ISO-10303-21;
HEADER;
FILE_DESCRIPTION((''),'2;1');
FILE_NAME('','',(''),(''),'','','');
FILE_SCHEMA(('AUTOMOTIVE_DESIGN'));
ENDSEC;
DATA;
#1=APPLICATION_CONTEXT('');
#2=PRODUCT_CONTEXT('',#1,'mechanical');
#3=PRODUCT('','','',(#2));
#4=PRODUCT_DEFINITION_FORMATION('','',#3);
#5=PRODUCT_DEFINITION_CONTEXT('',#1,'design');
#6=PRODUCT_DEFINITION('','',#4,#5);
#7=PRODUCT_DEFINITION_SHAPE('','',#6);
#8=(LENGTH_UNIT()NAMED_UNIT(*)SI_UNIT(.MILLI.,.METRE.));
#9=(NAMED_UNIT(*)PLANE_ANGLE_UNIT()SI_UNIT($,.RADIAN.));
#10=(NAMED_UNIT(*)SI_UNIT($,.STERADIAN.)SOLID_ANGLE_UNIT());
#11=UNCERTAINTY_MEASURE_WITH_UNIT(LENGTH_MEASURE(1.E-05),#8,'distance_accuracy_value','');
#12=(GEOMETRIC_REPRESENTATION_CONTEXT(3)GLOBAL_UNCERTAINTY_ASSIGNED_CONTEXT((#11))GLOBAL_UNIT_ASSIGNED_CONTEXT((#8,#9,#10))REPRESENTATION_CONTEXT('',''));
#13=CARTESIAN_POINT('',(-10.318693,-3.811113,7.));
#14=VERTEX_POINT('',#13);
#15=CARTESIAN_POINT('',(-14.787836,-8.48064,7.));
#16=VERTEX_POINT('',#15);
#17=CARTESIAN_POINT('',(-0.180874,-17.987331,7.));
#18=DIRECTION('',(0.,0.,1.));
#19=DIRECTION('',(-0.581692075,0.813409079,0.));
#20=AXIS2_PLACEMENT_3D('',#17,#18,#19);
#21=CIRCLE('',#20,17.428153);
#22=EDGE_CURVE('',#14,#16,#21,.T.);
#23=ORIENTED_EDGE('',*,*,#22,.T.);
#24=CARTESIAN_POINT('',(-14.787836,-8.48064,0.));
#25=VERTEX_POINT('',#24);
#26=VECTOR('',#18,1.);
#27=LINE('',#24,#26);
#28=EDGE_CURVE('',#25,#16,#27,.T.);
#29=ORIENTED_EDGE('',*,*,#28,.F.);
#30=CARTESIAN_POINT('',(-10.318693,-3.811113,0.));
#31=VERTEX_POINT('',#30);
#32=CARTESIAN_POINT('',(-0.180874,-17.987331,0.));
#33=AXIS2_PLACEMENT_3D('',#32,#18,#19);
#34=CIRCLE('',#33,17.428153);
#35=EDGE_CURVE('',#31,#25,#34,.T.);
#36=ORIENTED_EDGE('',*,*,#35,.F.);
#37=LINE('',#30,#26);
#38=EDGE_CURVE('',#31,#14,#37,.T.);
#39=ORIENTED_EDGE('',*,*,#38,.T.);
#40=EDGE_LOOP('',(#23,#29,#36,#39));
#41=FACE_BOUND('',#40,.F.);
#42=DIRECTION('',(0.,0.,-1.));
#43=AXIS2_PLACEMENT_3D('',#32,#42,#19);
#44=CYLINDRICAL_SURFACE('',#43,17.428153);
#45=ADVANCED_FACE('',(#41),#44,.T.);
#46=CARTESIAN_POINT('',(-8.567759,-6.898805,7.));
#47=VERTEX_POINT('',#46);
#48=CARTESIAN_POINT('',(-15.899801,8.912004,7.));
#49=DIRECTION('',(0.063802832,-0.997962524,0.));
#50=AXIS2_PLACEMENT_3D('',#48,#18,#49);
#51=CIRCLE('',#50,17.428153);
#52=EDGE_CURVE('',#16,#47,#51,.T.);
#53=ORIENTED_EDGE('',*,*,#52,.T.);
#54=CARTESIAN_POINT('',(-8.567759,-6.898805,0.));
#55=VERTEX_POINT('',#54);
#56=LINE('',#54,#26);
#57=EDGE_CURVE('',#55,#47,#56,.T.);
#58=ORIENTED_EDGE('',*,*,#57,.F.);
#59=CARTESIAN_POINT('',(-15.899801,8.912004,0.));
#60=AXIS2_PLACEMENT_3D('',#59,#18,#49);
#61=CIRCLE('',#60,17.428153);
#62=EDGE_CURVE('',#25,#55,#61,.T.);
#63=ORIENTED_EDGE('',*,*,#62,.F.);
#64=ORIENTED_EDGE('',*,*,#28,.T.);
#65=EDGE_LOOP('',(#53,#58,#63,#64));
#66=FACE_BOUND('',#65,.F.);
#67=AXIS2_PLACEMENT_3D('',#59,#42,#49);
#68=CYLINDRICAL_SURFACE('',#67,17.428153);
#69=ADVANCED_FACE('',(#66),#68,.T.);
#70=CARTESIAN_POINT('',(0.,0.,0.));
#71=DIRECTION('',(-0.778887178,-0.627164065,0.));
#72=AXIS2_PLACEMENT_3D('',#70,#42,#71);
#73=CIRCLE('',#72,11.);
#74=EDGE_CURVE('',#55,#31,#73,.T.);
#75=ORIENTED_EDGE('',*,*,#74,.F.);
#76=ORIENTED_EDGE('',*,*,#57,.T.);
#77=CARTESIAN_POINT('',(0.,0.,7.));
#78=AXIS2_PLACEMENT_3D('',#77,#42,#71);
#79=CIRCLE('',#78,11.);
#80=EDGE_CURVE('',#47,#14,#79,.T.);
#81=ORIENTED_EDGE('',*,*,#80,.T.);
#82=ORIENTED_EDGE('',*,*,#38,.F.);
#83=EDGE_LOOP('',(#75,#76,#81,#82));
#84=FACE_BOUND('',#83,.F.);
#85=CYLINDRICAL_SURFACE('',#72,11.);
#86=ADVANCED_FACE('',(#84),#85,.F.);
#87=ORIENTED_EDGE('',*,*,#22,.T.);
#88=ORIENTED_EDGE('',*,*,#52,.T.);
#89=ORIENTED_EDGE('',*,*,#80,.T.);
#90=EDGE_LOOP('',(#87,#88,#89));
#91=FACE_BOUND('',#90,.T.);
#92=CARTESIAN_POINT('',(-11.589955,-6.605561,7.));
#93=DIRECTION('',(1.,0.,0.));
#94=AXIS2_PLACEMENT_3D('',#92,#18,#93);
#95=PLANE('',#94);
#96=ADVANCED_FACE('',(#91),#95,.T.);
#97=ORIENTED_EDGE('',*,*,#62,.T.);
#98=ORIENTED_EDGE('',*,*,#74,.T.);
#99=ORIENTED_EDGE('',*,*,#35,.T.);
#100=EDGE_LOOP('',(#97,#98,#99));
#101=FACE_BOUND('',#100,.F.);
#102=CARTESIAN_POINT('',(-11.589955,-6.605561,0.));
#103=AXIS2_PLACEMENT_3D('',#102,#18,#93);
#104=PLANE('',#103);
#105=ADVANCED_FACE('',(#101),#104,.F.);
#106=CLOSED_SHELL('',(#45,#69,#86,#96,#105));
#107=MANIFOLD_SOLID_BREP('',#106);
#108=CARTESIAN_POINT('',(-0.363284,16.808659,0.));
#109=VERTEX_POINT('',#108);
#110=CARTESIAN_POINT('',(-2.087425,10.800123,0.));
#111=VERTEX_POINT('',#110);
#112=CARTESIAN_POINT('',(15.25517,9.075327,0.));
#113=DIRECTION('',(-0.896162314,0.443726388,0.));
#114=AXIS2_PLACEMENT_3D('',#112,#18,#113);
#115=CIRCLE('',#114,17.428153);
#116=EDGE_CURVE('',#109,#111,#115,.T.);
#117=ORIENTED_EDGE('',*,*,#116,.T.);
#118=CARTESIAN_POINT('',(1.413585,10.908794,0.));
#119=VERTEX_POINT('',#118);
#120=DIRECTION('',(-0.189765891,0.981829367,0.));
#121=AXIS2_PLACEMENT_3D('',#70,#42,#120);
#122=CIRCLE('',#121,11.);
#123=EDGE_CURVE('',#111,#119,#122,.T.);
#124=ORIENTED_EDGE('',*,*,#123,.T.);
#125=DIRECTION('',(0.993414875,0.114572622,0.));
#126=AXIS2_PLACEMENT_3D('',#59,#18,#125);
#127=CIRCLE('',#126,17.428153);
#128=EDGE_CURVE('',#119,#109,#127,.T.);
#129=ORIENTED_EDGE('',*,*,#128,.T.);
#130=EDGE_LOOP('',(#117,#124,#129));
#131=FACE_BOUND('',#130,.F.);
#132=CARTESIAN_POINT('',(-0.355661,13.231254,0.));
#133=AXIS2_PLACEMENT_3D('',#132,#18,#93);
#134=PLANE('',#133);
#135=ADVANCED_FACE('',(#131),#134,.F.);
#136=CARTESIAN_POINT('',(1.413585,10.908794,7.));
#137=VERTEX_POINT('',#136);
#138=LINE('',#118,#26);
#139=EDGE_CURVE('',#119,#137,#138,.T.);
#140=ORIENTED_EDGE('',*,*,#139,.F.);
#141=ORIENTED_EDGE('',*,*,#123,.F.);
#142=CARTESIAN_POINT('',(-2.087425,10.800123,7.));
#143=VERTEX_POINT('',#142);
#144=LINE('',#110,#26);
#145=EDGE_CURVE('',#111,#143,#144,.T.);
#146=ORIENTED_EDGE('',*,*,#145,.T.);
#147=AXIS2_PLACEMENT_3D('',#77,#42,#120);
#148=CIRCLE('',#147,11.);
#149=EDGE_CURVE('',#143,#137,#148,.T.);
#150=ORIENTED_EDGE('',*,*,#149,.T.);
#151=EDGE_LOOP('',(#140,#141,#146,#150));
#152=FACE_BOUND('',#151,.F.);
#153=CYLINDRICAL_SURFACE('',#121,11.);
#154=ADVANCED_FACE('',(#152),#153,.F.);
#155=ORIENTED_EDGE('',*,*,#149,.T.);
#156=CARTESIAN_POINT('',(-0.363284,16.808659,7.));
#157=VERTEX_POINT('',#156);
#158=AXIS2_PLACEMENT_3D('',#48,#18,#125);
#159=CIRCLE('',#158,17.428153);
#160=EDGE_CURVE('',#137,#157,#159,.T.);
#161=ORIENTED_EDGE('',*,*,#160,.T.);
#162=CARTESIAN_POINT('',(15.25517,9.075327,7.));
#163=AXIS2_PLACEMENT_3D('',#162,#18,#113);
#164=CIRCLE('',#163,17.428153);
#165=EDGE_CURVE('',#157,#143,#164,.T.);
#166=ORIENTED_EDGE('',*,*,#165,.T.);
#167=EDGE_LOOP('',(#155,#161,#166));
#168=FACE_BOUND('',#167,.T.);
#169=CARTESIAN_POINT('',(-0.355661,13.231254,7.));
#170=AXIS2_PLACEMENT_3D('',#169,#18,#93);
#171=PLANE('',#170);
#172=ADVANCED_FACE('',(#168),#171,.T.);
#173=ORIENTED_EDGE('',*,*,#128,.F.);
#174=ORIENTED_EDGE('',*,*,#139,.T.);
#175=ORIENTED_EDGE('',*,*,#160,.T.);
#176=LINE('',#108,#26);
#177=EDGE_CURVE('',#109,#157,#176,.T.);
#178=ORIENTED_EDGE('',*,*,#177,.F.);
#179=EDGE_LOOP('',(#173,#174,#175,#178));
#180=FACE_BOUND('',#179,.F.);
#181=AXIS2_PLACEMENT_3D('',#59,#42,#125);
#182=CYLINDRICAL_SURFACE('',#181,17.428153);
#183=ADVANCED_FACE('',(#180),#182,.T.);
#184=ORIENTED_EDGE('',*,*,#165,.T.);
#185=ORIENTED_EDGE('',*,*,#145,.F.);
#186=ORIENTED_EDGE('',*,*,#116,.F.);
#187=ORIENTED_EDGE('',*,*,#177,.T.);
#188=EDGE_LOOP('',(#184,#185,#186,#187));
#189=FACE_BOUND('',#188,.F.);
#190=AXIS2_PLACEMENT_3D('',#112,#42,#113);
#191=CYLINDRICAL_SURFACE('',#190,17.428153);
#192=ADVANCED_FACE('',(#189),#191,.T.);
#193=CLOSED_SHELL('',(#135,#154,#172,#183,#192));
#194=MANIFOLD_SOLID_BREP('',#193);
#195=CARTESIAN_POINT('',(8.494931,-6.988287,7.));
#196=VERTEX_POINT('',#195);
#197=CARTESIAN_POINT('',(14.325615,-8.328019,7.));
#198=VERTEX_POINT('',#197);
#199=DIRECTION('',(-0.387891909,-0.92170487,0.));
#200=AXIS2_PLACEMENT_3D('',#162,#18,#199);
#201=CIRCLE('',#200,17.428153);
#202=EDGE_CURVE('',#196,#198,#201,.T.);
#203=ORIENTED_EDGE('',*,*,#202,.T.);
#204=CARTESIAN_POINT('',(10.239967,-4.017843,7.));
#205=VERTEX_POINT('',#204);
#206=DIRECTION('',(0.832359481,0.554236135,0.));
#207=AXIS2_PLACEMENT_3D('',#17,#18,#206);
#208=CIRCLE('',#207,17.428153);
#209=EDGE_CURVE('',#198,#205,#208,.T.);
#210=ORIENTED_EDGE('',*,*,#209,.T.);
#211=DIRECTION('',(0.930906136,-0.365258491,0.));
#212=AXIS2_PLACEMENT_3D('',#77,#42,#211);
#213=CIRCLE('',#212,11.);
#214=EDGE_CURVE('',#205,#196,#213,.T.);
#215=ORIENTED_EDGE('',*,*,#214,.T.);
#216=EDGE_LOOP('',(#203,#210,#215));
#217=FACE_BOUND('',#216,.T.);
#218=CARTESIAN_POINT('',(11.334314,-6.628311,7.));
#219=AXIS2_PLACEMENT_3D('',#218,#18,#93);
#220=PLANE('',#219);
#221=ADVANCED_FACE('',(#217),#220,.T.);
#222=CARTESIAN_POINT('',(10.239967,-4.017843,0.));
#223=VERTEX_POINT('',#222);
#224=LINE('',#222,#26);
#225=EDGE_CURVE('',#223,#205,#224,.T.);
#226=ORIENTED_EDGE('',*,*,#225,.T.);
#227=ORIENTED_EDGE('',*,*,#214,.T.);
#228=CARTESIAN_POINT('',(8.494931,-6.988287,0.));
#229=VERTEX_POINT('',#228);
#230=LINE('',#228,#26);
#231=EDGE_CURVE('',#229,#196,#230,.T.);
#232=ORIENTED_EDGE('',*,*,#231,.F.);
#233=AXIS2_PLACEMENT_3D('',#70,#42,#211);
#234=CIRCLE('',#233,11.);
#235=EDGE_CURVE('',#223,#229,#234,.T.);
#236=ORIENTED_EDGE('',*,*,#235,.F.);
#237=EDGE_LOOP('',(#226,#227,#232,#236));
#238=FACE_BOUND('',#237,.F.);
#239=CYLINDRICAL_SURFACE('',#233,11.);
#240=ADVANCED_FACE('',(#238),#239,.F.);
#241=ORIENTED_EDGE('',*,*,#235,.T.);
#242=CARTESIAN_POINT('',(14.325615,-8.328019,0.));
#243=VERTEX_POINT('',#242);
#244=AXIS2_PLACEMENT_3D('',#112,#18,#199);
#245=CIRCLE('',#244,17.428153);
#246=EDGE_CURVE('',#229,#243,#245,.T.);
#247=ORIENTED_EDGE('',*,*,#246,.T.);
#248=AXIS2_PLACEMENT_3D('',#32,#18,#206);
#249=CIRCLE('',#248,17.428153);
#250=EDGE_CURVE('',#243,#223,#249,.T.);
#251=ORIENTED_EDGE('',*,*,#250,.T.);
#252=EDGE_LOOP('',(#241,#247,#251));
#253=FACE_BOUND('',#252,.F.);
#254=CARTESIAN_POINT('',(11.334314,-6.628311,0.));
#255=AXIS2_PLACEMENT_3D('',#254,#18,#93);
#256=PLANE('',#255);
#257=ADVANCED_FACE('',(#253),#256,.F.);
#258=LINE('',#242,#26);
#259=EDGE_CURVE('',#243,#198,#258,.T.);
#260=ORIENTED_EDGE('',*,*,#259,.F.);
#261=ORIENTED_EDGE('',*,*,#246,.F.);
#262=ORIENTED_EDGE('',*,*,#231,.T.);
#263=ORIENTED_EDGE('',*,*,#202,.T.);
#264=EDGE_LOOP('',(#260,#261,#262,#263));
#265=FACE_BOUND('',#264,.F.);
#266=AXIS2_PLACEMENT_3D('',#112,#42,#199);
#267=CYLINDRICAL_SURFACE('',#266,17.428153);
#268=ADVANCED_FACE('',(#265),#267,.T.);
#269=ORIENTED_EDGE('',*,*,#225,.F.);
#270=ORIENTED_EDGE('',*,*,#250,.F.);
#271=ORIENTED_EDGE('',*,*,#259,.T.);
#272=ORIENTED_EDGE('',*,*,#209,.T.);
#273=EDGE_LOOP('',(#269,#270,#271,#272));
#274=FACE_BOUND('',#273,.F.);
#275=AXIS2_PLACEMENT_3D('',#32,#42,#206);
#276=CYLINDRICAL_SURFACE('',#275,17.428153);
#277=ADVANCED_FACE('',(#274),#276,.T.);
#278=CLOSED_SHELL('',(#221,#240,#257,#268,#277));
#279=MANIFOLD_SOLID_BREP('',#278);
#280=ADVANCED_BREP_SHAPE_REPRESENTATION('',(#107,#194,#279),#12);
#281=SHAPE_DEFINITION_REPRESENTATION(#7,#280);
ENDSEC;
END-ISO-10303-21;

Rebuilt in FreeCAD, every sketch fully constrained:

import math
import FreeCAD as App
import Part
import Sketcher

V = App.Vector
Q = App.Units.Quantity

doc = App.newDocument("Part")
body = doc.addObject("PartDesign::Body", "Body")

sketch1 = doc.addObject("Sketcher::SketchObject", "Sketch")
body.addObject(sketch1)
sketch1.AttachmentSupport = (doc.XY_Plane, [""])
sketch1.MapMode = "FlatFace"
sketch1.addGeometry([
    Part.ArcOfCircle(Part.Circle(V(0, 0, 0), V(0, 0, 1), 11), math.radians(82.62), math.radians(100.94)),
    Part.ArcOfCircle(Part.Circle(V(-15.9, 8.9, 0), V(0, 0, 1), 17.4), math.radians(7), math.radians(27)),
    Part.ArcOfCircle(Part.Circle(V(15.3, 9.1, 0), V(0, 0, 1), 17.4), math.radians(154), math.radians(174)),
], False)
sketch1.addConstraint([
    Sketcher.Constraint("Coincident", 0, 1, 1, 1),
    Sketcher.Constraint("Coincident", 1, 2, 2, 1),
    Sketcher.Constraint("Coincident", 2, 2, 0, 2),
    Sketcher.Constraint("Coincident", 0, 3, -1, 1),
    Sketcher.Constraint("Equal", 1, 2),
    Sketcher.Constraint("Radius", 0, Q("11 mm")),
    Sketcher.Constraint("Radius", 1, Q("17.428153 mm")),
    Sketcher.Constraint("DistanceX", 1, 3, -1, 1, Q("15.899801 mm")),
    Sketcher.Constraint("DistanceX", -1, 1, 2, 3, Q("15.25517 mm")),
    Sketcher.Constraint("DistanceY", -1, 1, 1, 2, Q("16.808659 mm")),
    Sketcher.Constraint("DistanceY", 1, 3, 0, 1, Q("1.996789 mm")),
])
pad1 = doc.addObject("PartDesign::Pad", "Pad")
body.addObject(pad1)
pad1.Profile = sketch1
pad1.Length = 7
body2 = doc.addObject("PartDesign::Body", "Body001")

sketch2 = doc.addObject("Sketcher::SketchObject", "Sketch001")
body2.addObject(sketch2)
sketch2.AttachmentSupport = (doc.getObject("XY_Plane001"), [""])
sketch2.MapMode = "FlatFace"
sketch2.addGeometry([
    Part.ArcOfCircle(Part.Circle(V(0, 0, 0), V(0, 0, 1), 11), math.radians(-159.73), math.radians(-141.16)),
    Part.ArcOfCircle(Part.Circle(V(-0.2, -18, 0), V(0, 0, 1), 17.4), math.radians(126), math.radians(147)),
    Part.ArcOfCircle(Part.Circle(V(-15.9, 8.9, 0), V(0, 0, 1), 17.4), math.radians(-86), math.radians(-65)),
], False)
sketch2.addConstraint([
    Sketcher.Constraint("Coincident", 0, 1, 1, 1),
    Sketcher.Constraint("Coincident", 1, 2, 2, 1),
    Sketcher.Constraint("Coincident", 2, 2, 0, 2),
    Sketcher.Constraint("Coincident", 0, 3, -1, 1),
    Sketcher.Constraint("Equal", 1, 2),
    Sketcher.Constraint("Radius", 0, Q("11 mm")),
    Sketcher.Constraint("Radius", 1, Q("17.428153 mm")),
    Sketcher.Constraint("DistanceX", 2, 3, -1, 1, Q("15.899801 mm")),
    Sketcher.Constraint("DistanceY", 1, 3, -1, 1, Q("17.987331 mm")),
    Sketcher.Constraint("DistanceY", 1, 2, -1, 1, Q("8.48064 mm")),
    Sketcher.Constraint("DistanceX", 2, 2, -1, 1, Q("8.567759 mm")),
])
pad2 = doc.addObject("PartDesign::Pad", "Pad001")
body2.addObject(pad2)
pad2.Profile = sketch2
pad2.Length = 7
body3 = doc.addObject("PartDesign::Body", "Body002")

sketch3 = doc.addObject("Sketcher::SketchObject", "Sketch002")
body3.addObject(sketch3)
sketch3.AttachmentSupport = (doc.getObject("XY_Plane002"), [""])
sketch3.MapMode = "FlatFace"
sketch3.addGeometry([
    Part.ArcOfCircle(Part.Circle(V(-0.2, -18, 0), V(0, 0, 1), 17.4), math.radians(33.66), math.radians(53.28)),
    Part.ArcOfCircle(Part.Circle(V(0, 0, 0), V(0, 0, 1), 11), math.radians(-39.44), math.radians(-21.42)),
    Part.ArcOfCircle(Part.Circle(V(15.3, 9.1, 0), V(0, 0, 1), 17.4), math.radians(-112.82), math.radians(-93.06)),
], False)
sketch3.addConstraint([
    Sketcher.Constraint("Coincident", 0, 2, 1, 2),
    Sketcher.Constraint("Coincident", 1, 1, 2, 1),
    Sketcher.Constraint("Coincident", 2, 2, 0, 1),
    Sketcher.Constraint("Coincident", 1, 3, -1, 1),
    Sketcher.Constraint("Equal", 0, 2),
    Sketcher.Constraint("Radius", 1, Q("11 mm")),
    Sketcher.Constraint("Radius", 0, Q("17.428153 mm")),
    Sketcher.Constraint("DistanceY", 0, 3, -1, 1, Q("17.987331 mm")),
    Sketcher.Constraint("DistanceX", -1, 1, 2, 3, Q("15.25517 mm")),
    Sketcher.Constraint("DistanceX", -1, 1, 1, 1, Q("8.494931 mm")),
    Sketcher.Constraint("DistanceY", 2, 2, -1, 1, Q("8.328019 mm")),
])
pad3 = doc.addObject("PartDesign::Pad", "Pad002")
body3.addObject(pad3)
pad3.Profile = sketch3
pad3.Length = 7

doc.recompute()
